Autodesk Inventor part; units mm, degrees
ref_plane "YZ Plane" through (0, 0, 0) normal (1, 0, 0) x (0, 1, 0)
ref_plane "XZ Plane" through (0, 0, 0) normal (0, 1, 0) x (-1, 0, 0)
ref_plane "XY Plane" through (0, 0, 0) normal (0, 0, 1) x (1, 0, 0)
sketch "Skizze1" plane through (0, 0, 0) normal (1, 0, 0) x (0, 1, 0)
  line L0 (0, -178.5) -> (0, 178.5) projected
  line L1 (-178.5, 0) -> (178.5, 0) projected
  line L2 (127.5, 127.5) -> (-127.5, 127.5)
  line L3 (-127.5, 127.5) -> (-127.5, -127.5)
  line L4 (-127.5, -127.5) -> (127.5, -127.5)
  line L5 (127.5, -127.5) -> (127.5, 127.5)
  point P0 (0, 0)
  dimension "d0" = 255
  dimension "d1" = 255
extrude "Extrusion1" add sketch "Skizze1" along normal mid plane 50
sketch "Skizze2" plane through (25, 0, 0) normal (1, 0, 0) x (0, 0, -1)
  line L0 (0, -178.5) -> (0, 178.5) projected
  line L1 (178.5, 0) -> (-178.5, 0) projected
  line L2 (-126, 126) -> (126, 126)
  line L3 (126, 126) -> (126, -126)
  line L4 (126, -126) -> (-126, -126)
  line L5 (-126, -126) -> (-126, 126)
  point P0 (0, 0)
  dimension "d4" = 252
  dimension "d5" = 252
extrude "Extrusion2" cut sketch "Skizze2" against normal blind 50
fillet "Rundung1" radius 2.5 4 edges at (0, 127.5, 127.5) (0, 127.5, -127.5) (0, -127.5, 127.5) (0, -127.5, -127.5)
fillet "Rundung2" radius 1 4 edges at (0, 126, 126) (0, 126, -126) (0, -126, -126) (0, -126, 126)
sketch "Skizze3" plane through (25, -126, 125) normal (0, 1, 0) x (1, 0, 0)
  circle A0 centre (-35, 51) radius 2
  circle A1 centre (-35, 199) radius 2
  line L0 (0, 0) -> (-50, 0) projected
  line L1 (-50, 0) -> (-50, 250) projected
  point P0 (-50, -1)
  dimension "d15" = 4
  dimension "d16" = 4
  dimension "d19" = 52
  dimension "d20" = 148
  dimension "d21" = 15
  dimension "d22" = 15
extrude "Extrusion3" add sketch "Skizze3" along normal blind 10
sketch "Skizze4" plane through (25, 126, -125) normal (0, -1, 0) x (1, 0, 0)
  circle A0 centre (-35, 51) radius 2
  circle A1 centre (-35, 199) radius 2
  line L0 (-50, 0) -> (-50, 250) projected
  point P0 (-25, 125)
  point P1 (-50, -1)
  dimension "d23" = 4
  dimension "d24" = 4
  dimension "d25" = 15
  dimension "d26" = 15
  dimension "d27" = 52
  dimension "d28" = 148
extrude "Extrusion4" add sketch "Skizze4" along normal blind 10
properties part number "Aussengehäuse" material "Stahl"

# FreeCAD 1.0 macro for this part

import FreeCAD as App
import Part
import Sketcher
from FreeCAD import Vector
Q = App.Units.Quantity


def edges_at(feature, points):
    """Names of the edges that pass closest to the given points."""
    edges = feature.Shape.Edges
    near = lambda p: min(range(len(edges)), key=lambda i: edges[i].distToShape(Part.Vertex(*p))[0])
    return sorted({f"Edge{near(p) + 1}" for p in points})


def add_polygon(sketch, points):
    """Adds a closed chain of lines whose ends are joined by coincident constraints."""
    first, n = sketch.GeometryCount, len(points)
    for a, b in zip(points, points[1:] + points[:1]):
        sketch.addGeometry(Part.LineSegment(App.Vector(*a, 0), App.Vector(*b, 0)), False)
    for i in range(n):
        sketch.addConstraint(Sketcher.Constraint("Coincident", first + i, 2, first + (i + 1) % n, 1))

doc = App.newDocument("Part")
body = doc.addObject("PartDesign::Body", "Body")

sketch1 = body.newObject("Sketcher::SketchObject", "Sketch")
sketch1.AttachmentSupport = (doc.getObject("YZ_Plane"), [""])
sketch1.MapMode = "FlatFace"
add_polygon(sketch1, [(-127.5, -127.5), (127.5, -127.5), (127.5, 127.5), (-127.5, 127.5)])
sketch1.addConstraint(Sketcher.Constraint("Horizontal", 0))
sketch1.addConstraint(Sketcher.Constraint("Vertical", 1))
sketch1.addConstraint(Sketcher.Constraint("Horizontal", 2))
sketch1.addConstraint(Sketcher.Constraint("Vertical", 3))
sketch1.addConstraint(Sketcher.Constraint("Symmetric", 0, 2, 2, 2, -1, 1))
sketch1.addConstraint(Sketcher.Constraint("Equal", 2, 1))
sketch1.addConstraint(Sketcher.Constraint("DistanceX", 0, 1, 0, 2, Q("255 mm")))
pad1 = body.newObject("PartDesign::Pad", "Pad")
pad1.Profile = sketch1
pad1.Length = 50
pad1.Midplane = True

sketch2 = body.newObject("Sketcher::SketchObject", "Sketch001")
sketch2.AttachmentSupport = (doc.getObject("YZ_Plane"), [""])
sketch2.MapMode = "FlatFace"
sketch2.AttachmentOffset = App.Placement(Vector(0, 0, 25), App.Rotation())
add_polygon(sketch2, [(-126, 126), (-126, -126), (126, -126), (126, 126)])
sketch2.addConstraint(Sketcher.Constraint("Vertical", 0))
sketch2.addConstraint(Sketcher.Constraint("Horizontal", 1))
sketch2.addConstraint(Sketcher.Constraint("Vertical", 2))
sketch2.addConstraint(Sketcher.Constraint("Horizontal", 3))
sketch2.addConstraint(Sketcher.Constraint("Symmetric", 0, 2, 2, 2, -1, 1))
sketch2.addConstraint(Sketcher.Constraint("Equal", 3, 0))
sketch2.addConstraint(Sketcher.Constraint("DistanceX", 1, 1, 1, 2, Q("252 mm")))
pocket1 = body.newObject("PartDesign::Pocket", "Pocket")
pocket1.Profile = sketch2
pocket1.Length = 50
doc.recompute()

fillet = body.newObject("PartDesign::Fillet", "Fillet")
fillet.Base = (pocket1, edges_at(pocket1, [
    (0, 127.5, 127.5),
    (0, 127.5, -127.5),
    (0, -127.5, 127.5),
    (0, -127.5, -127.5),
]))
fillet.Radius = 2.5
doc.recompute()

fillet2 = body.newObject("PartDesign::Fillet", "Fillet001")
fillet2.Base = (fillet, edges_at(fillet, [
    (0, 126, 126),
    (0, 126, -126),
    (0, -126, -126),
    (0, -126, 126),
]))
fillet2.Radius = 1

sketch3 = body.newObject("Sketcher::SketchObject", "Sketch002")
sketch3.AttachmentSupport = (doc.getObject("XZ_Plane"), [""])
sketch3.MapMode = "FlatFace"
sketch3.AttachmentOffset = App.Placement(Vector(0, 0, 126), App.Rotation())
sketch3.addGeometry(Part.Circle(Vector(-10, 74, 0), Vector(0, 0, 1), 2), False)
sketch3.addGeometry(Part.Circle(Vector(-10, -74, 0), Vector(0, 0, 1), 2), False)
sketch3.addConstraint(Sketcher.Constraint("Equal", 0, 1))
sketch3.addConstraint(Sketcher.Constraint("Symmetric", 0, 3, 1, 3, -1))
sketch3.addConstraint(Sketcher.Constraint("Diameter", 0, Q("4 mm")))
sketch3.addConstraint(Sketcher.Constraint("DistanceY", 1, 3, 0, 3, Q("148 mm")))
sketch3.addConstraint(Sketcher.Constraint("DistanceX", 0, 3, -1, 1, Q("10 mm")))
pad2 = body.newObject("PartDesign::Pad", "Pad001")
pad2.Profile = sketch3
pad2.Length = 10
pad2.Reversed = True

sketch4 = body.newObject("Sketcher::SketchObject", "Sketch003")
sketch4.AttachmentSupport = (doc.getObject("XZ_Plane"), [""])
sketch4.MapMode = "FlatFace"
sketch4.AttachmentOffset = App.Placement(Vector(0, 0, -126), App.Rotation())
sketch4.addGeometry(Part.Circle(Vector(-10, -74, 0), Vector(0, 0, 1), 2), False)
sketch4.addGeometry(Part.Circle(Vector(-10, 74, 0), Vector(0, 0, 1), 2), False)
sketch4.addConstraint(Sketcher.Constraint("Equal", 0, 1))
sketch4.addConstraint(Sketcher.Constraint("Symmetric", 0, 3, 1, 3, -1))
sketch4.addConstraint(Sketcher.Constraint("Diameter", 0, Q("4 mm")))
sketch4.addConstraint(Sketcher.Constraint("DistanceY", 0, 3, 1, 3, Q("148 mm")))
sketch4.addConstraint(Sketcher.Constraint("DistanceX", 0, 3, -1, 1, Q("10 mm")))
pad3 = body.newObject("PartDesign::Pad", "Pad002")
pad3.Profile = sketch4
pad3.Length = 10

doc.recompute()
